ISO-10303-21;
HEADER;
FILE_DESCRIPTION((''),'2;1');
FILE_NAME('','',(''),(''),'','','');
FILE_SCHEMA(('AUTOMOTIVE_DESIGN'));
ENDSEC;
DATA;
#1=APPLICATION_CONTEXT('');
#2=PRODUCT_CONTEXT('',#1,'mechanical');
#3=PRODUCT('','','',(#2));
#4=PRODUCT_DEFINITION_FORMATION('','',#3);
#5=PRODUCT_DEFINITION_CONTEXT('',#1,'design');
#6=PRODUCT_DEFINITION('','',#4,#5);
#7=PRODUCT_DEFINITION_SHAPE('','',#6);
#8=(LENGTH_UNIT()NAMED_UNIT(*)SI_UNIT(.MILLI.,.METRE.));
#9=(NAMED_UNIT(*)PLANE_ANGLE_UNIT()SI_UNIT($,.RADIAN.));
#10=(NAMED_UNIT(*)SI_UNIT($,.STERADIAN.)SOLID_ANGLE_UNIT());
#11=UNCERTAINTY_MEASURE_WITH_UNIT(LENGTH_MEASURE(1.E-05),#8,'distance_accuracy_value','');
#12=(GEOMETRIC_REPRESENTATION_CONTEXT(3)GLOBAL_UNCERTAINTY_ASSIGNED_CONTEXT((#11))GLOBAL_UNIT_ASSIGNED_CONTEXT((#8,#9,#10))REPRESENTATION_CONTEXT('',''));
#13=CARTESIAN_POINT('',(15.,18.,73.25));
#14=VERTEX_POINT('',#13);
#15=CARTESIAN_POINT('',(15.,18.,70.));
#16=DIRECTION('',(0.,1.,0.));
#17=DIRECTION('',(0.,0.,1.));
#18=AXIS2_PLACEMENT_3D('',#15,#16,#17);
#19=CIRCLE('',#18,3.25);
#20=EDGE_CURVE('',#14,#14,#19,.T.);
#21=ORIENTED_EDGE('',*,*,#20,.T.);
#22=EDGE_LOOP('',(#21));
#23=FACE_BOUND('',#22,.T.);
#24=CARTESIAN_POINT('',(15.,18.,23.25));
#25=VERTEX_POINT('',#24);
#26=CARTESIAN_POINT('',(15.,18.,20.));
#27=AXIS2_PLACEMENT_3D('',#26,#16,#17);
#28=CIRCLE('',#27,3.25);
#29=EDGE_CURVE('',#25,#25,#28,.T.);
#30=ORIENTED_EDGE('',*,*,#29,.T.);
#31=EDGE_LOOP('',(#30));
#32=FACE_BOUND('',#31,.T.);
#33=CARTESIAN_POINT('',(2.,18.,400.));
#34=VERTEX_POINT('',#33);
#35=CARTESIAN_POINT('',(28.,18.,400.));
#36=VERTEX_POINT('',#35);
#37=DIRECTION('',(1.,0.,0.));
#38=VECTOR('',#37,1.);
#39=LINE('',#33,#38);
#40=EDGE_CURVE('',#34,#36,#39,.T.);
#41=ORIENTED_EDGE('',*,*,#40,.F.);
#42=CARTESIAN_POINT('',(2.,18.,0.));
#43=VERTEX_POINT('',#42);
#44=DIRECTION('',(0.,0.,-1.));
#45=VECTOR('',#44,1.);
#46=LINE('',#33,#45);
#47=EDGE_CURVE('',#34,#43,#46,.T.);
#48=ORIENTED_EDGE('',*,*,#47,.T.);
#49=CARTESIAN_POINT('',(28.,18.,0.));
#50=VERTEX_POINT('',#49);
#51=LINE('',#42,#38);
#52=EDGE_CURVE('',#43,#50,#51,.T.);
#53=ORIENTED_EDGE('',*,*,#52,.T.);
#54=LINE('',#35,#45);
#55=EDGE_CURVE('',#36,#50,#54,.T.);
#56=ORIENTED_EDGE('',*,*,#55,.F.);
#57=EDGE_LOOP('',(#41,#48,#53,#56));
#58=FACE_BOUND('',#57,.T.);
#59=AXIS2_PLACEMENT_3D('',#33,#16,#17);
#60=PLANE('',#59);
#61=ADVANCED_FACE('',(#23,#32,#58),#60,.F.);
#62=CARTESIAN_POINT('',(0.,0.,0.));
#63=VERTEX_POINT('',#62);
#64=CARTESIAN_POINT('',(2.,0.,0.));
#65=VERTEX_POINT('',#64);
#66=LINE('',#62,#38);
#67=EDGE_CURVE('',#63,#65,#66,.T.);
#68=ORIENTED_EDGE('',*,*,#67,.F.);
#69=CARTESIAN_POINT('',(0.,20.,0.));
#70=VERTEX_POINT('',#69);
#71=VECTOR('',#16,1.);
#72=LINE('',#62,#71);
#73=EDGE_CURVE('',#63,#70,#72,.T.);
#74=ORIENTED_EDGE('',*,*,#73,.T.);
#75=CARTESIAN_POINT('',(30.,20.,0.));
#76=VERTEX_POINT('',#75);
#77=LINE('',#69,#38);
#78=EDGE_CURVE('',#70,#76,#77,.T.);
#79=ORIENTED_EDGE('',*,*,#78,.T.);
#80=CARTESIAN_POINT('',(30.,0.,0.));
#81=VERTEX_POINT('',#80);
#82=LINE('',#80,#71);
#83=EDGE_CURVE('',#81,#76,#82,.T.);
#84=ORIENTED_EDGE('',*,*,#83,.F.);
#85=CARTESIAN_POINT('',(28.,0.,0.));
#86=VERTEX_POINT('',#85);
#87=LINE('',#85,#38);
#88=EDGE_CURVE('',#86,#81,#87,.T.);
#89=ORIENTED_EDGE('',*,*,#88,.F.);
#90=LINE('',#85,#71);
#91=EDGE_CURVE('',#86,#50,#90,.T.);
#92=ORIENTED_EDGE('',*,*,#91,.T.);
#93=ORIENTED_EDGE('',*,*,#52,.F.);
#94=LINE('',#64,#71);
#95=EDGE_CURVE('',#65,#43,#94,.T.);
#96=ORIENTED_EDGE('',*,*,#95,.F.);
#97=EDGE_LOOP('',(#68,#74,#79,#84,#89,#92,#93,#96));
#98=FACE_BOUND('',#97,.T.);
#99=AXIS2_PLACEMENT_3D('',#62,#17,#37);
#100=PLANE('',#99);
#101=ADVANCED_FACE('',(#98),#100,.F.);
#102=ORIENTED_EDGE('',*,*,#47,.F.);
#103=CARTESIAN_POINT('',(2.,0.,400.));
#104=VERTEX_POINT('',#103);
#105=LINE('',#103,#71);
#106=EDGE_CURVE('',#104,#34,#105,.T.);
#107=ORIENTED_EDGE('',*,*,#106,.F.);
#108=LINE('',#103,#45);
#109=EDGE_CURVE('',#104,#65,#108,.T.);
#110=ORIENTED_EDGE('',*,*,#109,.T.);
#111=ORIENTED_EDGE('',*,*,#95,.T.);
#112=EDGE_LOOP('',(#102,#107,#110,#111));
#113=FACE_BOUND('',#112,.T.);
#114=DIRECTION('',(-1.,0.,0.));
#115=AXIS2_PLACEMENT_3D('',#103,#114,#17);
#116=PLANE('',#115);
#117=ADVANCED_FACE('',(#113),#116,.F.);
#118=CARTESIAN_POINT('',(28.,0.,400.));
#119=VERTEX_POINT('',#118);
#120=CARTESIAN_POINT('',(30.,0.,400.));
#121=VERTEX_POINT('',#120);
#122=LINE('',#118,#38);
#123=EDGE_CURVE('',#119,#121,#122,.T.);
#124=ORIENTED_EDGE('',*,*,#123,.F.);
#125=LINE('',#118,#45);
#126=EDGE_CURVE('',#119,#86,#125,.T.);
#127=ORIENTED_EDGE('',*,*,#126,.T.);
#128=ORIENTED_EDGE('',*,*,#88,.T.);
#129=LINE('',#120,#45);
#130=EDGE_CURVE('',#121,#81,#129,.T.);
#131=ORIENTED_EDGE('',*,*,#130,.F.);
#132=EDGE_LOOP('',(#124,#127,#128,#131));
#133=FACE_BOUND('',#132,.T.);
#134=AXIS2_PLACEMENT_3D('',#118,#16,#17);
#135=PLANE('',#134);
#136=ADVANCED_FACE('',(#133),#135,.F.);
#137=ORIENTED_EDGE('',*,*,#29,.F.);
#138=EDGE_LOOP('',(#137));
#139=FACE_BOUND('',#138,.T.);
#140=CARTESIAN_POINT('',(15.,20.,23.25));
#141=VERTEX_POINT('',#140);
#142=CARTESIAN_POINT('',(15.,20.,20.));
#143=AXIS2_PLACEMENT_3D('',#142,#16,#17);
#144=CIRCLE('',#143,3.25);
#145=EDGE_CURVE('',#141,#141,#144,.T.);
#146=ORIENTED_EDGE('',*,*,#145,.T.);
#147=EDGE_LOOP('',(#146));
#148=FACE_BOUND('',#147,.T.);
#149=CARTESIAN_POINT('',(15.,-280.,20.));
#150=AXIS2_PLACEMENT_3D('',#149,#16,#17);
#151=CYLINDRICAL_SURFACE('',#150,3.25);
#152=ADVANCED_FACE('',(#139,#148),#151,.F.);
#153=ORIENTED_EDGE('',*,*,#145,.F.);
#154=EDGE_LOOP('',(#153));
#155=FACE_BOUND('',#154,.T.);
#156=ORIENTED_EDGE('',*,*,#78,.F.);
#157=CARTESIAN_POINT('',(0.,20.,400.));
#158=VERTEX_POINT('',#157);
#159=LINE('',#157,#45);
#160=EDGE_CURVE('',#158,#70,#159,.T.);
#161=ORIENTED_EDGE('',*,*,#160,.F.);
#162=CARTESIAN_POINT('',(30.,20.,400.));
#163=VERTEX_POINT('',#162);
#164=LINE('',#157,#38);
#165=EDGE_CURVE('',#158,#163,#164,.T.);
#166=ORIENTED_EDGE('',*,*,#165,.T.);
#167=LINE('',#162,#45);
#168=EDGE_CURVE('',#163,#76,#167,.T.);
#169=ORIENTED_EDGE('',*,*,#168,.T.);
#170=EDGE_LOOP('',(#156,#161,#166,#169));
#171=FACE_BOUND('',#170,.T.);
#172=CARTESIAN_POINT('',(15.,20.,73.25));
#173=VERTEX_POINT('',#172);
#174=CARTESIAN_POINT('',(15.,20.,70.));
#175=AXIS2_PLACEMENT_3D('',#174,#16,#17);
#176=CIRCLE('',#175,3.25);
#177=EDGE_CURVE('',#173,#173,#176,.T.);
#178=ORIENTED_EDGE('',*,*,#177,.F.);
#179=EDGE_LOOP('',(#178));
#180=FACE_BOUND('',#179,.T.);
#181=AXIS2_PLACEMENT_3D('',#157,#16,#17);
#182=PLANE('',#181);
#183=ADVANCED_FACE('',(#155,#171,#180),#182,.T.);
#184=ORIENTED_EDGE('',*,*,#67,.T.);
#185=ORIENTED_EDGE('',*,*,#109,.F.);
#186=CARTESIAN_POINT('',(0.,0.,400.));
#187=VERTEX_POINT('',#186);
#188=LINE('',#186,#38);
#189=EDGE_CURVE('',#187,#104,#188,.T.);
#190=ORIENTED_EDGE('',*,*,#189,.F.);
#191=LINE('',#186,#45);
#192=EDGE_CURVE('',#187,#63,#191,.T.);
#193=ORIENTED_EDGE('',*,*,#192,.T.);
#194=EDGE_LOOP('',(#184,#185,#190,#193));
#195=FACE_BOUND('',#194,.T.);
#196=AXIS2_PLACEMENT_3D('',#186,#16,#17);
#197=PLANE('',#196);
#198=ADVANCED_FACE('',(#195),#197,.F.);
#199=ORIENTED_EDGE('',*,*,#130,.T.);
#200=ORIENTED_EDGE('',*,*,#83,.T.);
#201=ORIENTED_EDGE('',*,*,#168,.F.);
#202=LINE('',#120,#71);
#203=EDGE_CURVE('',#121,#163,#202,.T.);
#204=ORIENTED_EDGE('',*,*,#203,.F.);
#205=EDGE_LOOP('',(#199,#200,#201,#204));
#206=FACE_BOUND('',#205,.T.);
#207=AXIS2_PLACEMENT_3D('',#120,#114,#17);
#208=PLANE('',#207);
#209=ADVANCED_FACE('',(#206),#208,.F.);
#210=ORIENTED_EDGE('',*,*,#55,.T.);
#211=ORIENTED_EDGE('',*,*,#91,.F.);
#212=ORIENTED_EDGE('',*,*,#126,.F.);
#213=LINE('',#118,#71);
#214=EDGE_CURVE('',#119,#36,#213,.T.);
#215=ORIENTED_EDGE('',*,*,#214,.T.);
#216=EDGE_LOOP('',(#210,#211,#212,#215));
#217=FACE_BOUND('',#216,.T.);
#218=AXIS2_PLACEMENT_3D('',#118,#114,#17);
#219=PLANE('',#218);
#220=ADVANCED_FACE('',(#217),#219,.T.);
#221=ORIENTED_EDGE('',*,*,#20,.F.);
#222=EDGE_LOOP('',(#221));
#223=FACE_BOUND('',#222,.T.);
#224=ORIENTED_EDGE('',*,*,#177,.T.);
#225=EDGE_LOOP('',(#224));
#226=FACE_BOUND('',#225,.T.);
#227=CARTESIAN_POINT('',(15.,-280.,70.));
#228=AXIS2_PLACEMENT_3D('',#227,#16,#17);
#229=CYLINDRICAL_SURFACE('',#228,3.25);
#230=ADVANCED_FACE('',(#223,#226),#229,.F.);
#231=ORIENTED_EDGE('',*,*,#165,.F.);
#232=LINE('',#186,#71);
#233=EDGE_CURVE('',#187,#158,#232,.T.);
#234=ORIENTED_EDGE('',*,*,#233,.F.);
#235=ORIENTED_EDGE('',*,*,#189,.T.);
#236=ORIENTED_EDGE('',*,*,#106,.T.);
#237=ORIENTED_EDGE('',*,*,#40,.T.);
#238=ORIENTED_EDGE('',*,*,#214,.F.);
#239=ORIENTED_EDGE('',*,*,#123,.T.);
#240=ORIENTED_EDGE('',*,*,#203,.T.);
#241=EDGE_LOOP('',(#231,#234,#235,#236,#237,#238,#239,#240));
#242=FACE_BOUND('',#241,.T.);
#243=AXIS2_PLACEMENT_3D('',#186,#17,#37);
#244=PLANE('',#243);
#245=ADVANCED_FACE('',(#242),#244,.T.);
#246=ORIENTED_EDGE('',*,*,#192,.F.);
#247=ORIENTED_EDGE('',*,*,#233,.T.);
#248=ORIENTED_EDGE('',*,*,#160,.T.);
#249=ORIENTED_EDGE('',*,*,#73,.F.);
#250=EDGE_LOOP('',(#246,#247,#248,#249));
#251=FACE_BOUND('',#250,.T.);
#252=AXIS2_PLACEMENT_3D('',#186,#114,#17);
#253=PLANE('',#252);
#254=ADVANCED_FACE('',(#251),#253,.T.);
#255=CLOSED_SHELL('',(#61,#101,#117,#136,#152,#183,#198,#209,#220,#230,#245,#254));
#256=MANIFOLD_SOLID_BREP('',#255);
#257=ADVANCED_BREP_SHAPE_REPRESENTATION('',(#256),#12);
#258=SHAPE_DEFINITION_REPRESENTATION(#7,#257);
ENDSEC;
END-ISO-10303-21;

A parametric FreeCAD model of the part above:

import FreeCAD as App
import Part
import Sketcher
from FreeCAD import Vector

doc = App.newDocument("Part")
body = doc.addObject("PartDesign::Body", "Body")

sketch1 = doc.addObject("Sketcher::SketchObject", "Sketch")
body.addObject(sketch1)
sketch1.AttachmentSupport = (doc.XY_Plane, [""])
sketch1.MapMode = "FlatFace"
sketch1.addGeometry(Part.LineSegment(Vector(28, 0, 0), Vector(30, 0, 0)), False)
sketch1.addGeometry(Part.LineSegment(Vector(30, 0, 0), Vector(30, 20, 0)), False)
sketch1.addGeometry(Part.LineSegment(Vector(30, 20, 0), Vector(0, 20, 0)), False)
sketch1.addGeometry(Part.LineSegment(Vector(0, 20, 0), Vector(0, 0, 0)), False)
sketch1.addGeometry(Part.LineSegment(Vector(0, 0, 0), Vector(2, 0, 0)), False)
sketch1.addGeometry(Part.LineSegment(Vector(2, 0, 0), Vector(2, 18, 0)), False)
sketch1.addGeometry(Part.LineSegment(Vector(2, 18, 0), Vector(28, 18, 0)), False)
sketch1.addGeometry(Part.LineSegment(Vector(28, 18, 0), Vector(28, 0, 0)), False)
sketch1.addConstraint(Sketcher.Constraint("Coincident", 0, 2, 1, 1))
sketch1.addConstraint(Sketcher.Constraint("Coincident", 1, 2, 2, 1))
sketch1.addConstraint(Sketcher.Constraint("Coincident", 2, 2, 3, 1))
sketch1.addConstraint(Sketcher.Constraint("Coincident", 3, 2, 4, 1))
sketch1.addConstraint(Sketcher.Constraint("Coincident", 4, 2, 5, 1))
sketch1.addConstraint(Sketcher.Constraint("Coincident", 5, 2, 6, 1))
sketch1.addConstraint(Sketcher.Constraint("Coincident", 6, 2, 7, 1))
sketch1.addConstraint(Sketcher.Constraint("Coincident", 7, 2, 0, 1))
sketch1.addConstraint(Sketcher.Constraint("Horizontal", 0))
sketch1.addConstraint(Sketcher.Constraint("Vertical", 1))
sketch1.addConstraint(Sketcher.Constraint("Horizontal", 2))
sketch1.addConstraint(Sketcher.Constraint("Vertical", 3))
sketch1.addConstraint(Sketcher.Constraint("Horizontal", 4))
sketch1.addConstraint(Sketcher.Constraint("Vertical", 5))
sketch1.addConstraint(Sketcher.Constraint("Horizontal", 6))
sketch1.addConstraint(Sketcher.Constraint("Vertical", 7))
sketch1.addConstraint(Sketcher.Constraint("Coincident", 3, 2, -1, 1))
sketch1.addConstraint(Sketcher.Constraint("PointOnObject", 0, 2, -1))
sketch1.addConstraint(Sketcher.Constraint("Equal", 0, 4))
sketch1.addConstraint(Sketcher.Constraint("DistanceX", 0, 1, 0, 2, 2.0))
sketch1.addConstraint(Sketcher.Constraint("DistanceX", 2, 2, 2, 1, 30.0))
sketch1.addConstraint(Sketcher.Constraint("DistanceY", 1, 1, 1, 2, 20.0))
sketch1.addConstraint(Sketcher.Constraint("DistanceY", 5, 1, 5, 2, 18.0))
pad1 = doc.addObject("PartDesign::Pad", "Pad")
body.addObject(pad1)
pad1.Profile = sketch1
pad1.Length = 400

sketch2 = doc.addObject("Sketcher::SketchObject", "Sketch001")
body.addObject(sketch2)
sketch2.AttachmentSupport = (doc.XZ_Plane, [""])
sketch2.MapMode = "FlatFace"
sketch2.AttachmentOffset = App.Placement(Vector(0, 0, -20), App.Rotation())
sketch2.addGeometry(Part.Circle(Vector(15, 70, 0), Vector(0, 0, 1), 3.2), False)
sketch2.addGeometry(Part.Circle(Vector(15, 20, 0), Vector(0, 0, 1), 3.2), False)
sketch2.addConstraint(Sketcher.Constraint("Equal", 0, 1))
sketch2.addConstraint(Sketcher.Constraint("Vertical", 0, 3, 1, 3))
sketch2.addConstraint(Sketcher.Constraint("Diameter", 0, 6.5))
sketch2.addConstraint(Sketcher.Constraint("DistanceX", -1, 1, 0, 3, 15.0))
sketch2.addConstraint(Sketcher.Constraint("DistanceY", -1, 1, 0, 3, 70.0))
sketch2.addConstraint(Sketcher.Constraint("DistanceY", -1, 1, 1, 3, 20.0))
pocket1 = doc.addObject("PartDesign::Pocket", "Pocket")
body.addObject(pocket1)
pocket1.Profile = sketch2
pocket1.Length = 300
pocket1.Reversed = True

doc.recompute()
